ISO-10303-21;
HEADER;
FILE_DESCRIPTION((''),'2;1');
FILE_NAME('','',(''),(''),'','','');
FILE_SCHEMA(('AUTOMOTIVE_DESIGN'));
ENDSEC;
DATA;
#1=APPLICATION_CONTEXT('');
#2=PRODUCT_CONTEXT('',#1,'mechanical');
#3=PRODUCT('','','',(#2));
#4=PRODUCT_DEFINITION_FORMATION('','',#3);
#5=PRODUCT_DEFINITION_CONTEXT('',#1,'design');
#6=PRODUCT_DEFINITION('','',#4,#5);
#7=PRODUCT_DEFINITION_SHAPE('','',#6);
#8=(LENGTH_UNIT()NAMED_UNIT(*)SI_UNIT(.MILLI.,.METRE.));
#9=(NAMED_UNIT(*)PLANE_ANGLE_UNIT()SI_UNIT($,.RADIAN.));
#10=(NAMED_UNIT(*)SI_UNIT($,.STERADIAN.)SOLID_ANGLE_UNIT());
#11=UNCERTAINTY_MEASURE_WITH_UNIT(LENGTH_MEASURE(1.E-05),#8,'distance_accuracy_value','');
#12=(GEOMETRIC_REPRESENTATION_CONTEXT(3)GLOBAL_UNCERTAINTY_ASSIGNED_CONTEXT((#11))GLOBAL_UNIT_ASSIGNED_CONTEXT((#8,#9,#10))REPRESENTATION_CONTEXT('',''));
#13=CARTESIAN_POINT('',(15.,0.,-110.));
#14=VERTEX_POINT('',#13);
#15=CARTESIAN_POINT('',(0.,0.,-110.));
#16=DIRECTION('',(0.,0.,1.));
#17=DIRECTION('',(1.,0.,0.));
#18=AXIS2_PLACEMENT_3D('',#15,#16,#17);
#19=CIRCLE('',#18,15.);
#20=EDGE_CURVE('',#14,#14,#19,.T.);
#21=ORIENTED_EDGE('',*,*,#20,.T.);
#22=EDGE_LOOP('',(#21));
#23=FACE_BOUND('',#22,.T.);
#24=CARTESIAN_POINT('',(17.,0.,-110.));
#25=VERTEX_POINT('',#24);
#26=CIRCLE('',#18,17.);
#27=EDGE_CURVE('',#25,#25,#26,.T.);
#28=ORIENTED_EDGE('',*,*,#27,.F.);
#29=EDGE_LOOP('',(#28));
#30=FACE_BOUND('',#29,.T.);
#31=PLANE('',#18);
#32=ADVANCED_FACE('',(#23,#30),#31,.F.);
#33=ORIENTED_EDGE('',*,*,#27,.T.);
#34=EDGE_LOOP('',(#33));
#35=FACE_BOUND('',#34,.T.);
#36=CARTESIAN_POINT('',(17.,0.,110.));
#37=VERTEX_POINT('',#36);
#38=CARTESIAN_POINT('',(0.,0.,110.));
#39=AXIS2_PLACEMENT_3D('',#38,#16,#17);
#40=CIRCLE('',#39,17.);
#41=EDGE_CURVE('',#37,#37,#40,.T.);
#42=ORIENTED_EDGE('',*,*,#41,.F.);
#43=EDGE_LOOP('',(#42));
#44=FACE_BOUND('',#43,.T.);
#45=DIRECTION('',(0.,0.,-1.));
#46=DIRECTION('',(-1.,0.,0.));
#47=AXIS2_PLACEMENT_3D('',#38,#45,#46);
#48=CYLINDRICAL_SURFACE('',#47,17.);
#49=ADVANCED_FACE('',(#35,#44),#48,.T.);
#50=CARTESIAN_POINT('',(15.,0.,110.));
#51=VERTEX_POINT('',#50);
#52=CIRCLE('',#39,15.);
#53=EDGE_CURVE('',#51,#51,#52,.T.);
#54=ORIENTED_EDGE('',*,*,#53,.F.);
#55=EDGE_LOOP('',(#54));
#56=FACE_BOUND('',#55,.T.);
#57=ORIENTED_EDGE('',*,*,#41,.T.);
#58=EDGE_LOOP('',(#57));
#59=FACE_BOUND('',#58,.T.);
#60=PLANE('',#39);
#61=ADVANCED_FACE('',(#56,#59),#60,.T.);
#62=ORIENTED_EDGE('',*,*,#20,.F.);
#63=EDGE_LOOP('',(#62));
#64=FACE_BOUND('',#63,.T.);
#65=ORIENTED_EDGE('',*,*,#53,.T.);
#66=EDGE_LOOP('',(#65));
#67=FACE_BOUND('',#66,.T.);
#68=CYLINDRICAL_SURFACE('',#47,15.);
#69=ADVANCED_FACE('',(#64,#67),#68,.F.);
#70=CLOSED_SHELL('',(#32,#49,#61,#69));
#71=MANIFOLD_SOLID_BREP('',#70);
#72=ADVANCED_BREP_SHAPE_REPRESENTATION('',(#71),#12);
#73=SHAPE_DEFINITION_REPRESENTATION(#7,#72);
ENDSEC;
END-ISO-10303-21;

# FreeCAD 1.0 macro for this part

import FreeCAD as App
import Part
import Sketcher

V = App.Vector
Q = App.Units.Quantity

doc = App.newDocument("Part")
body = doc.addObject("PartDesign::Body", "Body")

sketch1 = body.newObject("Sketcher::SketchObject", "Sketch")
sketch1.AttachmentSupport = (doc.getObject("XY_Plane"), [""])
sketch1.MapMode = "FlatFace"
sketch1.addGeometry([
    Part.Circle(V(0, 0, 0), V(0, 0, 1), 17),
    Part.Circle(V(0, 0, 0), V(0, 0, 1), 15),
], False)
sketch1.addConstraint([
    Sketcher.Constraint("Coincident", 0, 3, -1, 1),
    Sketcher.Constraint("Coincident", 1, 3, -1, 1),
    Sketcher.Constraint("Diameter", 0, Q("34 mm")),
    Sketcher.Constraint("Diameter", 1, Q("30 mm")),
])
pad1 = body.newObject("PartDesign::Pad", "Pad")
pad1.Profile = sketch1
pad1.Length = 220
pad1.Midplane = True

doc.recompute()
